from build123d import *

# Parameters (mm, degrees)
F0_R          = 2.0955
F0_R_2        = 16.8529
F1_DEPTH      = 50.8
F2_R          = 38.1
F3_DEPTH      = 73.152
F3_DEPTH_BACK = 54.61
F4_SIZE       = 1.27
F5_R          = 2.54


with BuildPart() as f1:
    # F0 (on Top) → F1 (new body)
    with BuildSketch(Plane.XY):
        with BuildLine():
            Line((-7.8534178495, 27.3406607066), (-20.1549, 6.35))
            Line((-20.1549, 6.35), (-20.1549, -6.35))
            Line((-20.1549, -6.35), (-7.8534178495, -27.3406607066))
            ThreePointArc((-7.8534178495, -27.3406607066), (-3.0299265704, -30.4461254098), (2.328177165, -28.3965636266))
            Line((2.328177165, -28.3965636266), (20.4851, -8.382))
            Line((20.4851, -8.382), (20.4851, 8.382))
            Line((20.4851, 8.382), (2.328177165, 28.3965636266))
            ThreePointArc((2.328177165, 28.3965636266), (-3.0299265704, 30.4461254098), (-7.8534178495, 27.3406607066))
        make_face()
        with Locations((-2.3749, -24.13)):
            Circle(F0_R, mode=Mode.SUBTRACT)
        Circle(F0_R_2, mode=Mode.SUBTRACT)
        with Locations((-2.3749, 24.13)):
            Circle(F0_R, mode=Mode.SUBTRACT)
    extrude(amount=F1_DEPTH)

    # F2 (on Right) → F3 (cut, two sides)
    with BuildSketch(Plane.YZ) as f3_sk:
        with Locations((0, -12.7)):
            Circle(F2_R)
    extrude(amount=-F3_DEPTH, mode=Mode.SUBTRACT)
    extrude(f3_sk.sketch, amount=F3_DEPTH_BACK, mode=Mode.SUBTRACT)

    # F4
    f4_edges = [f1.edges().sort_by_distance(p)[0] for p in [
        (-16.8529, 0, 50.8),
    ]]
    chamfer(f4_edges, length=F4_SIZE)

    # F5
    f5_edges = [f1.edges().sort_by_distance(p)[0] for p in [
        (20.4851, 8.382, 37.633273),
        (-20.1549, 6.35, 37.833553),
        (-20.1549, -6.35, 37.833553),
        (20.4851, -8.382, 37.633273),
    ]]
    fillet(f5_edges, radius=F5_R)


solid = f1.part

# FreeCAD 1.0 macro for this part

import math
import FreeCAD as App
import Part
import Sketcher
from FreeCAD import Vector
Q = App.Units.Quantity


def edges_at(feature, points):
    """Names of the edges that pass closest to the given points."""
    edges = feature.Shape.Edges
    near = lambda p: min(range(len(edges)), key=lambda i: edges[i].distToShape(Part.Vertex(*p))[0])
    return sorted({f"Edge{near(p) + 1}" for p in points})

doc = App.newDocument("Part")
body = doc.addObject("PartDesign::Body", "Body")

# Sketch on XY plane
sketch1 = body.newObject("Sketcher::SketchObject", "Sketch")
sketch1.AttachmentSupport = (doc.getObject("XY_Plane"), [""])
sketch1.MapMode = "FlatFace"
sketch1.addGeometry(Part.LineSegment(Vector(-7.9, 27.3, 0), Vector(-20.2, 6.3, 0)), False)
sketch1.addGeometry(Part.LineSegment(Vector(-20.2, 6.3, 0), Vector(-20.2, -6.3, 0)), False)
sketch1.addGeometry(Part.LineSegment(Vector(-20.2, -6.3, 0), Vector(-7.9, -27.3, 0)), False)
sketch1.addGeometry(Part.ArcOfCircle(Part.Circle(Vector(-2.4, -24.1, 0), Vector(0, 0, 1), 6.3), math.radians(-150), math.radians(-42)), False)
sketch1.addGeometry(Part.LineSegment(Vector(2.3, -28.4, 0), Vector(20.5, -8.4, 0)), False)
sketch1.addGeometry(Part.LineSegment(Vector(20.5, -8.4, 0), Vector(20.5, 8.4, 0)), False)
sketch1.addGeometry(Part.LineSegment(Vector(20.5, 8.4, 0), Vector(2.3, 28.4, 0)), False)
sketch1.addGeometry(Part.ArcOfCircle(Part.Circle(Vector(-2.4, 24.1, 0), Vector(0, 0, 1), 6.3), math.radians(42), math.radians(150)), False)
sketch1.addGeometry(Part.Circle(Vector(-2.4, -24.1, 0), Vector(0, 0, 1), 2.1), False)
sketch1.addGeometry(Part.Circle(Vector(-2.4, 24.1, 0), Vector(0, 0, 1), 2.1), False)
sketch1.addGeometry(Part.Circle(Vector(0, 0, 0), Vector(0, 0, 1), 16.9), False)
sketch1.addConstraint(Sketcher.Constraint("Coincident", 0, 2, 1, 1))
sketch1.addConstraint(Sketcher.Constraint("Coincident", 1, 2, 2, 1))
sketch1.addConstraint(Sketcher.Constraint("Tangent", 2, 2, 3, 1))
sketch1.addConstraint(Sketcher.Constraint("Tangent", 3, 2, 4, 1))
sketch1.addConstraint(Sketcher.Constraint("Coincident", 4, 2, 5, 1))
sketch1.addConstraint(Sketcher.Constraint("Coincident", 5, 2, 6, 1))
sketch1.addConstraint(Sketcher.Constraint("Tangent", 6, 2, 7, 1))
sketch1.addConstraint(Sketcher.Constraint("Tangent", 7, 2, 0, 1))
sketch1.addConstraint(Sketcher.Constraint("Vertical", 1))
sketch1.addConstraint(Sketcher.Constraint("Vertical", 5))
sketch1.addConstraint(Sketcher.Constraint("Coincident", 10, 3, -1, 1))
sketch1.addConstraint(Sketcher.Constraint("Coincident", 8, 3, 3, 3))
sketch1.addConstraint(Sketcher.Constraint("Coincident", 9, 3, 7, 3))
sketch1.addConstraint(Sketcher.Constraint("Equal", 3, 7))
sketch1.addConstraint(Sketcher.Constraint("Equal", 8, 9))
sketch1.addConstraint(Sketcher.Constraint("Symmetric", 3, 3, 7, 3, -1))
sketch1.addConstraint(Sketcher.Constraint("Vertical", 3, 2, 6, 2))
sketch1.addConstraint(Sketcher.Constraint("Vertical", 2, 2, 7, 2))
sketch1.addConstraint(Sketcher.Constraint("Radius", 3, Q("0.25 in")))
sketch1.addConstraint(Sketcher.Constraint("Diameter", 8, Q("0.165 in")))
sketch1.addConstraint(Sketcher.Constraint("Diameter", 10, Q("1.327 in")))
sketch1.addConstraint(Sketcher.Constraint("DistanceY", 1, 2, 1, 1, Q("0.5 in")))
sketch1.addConstraint(Sketcher.Constraint("DistanceY", 5, 1, 5, 2, Q("0.66 in")))
sketch1.addConstraint(Sketcher.Constraint("DistanceY", 3, 3, 7, 3, Q("1.9 in")))
sketch1.addConstraint(Sketcher.Constraint("DistanceX", 0, 2, 7, 3, Q("0.7 in")))
sketch1.addConstraint(Sketcher.Constraint("DistanceX", 3, 3, 4, 2, Q("0.9 in")))
sketch1.addConstraint(Sketcher.Constraint("DistanceX", 3, 3, -1, 1, Q("0.0935 in")))
pad1 = body.newObject("PartDesign::Pad", "Pad")
pad1.Profile = sketch1
pad1.Length = Q("2 in")

# Sketch on YZ plane
sketch2 = body.newObject("Sketcher::SketchObject", "Sketch001")
sketch2.AttachmentSupport = (doc.getObject("YZ_Plane"), [""])
sketch2.MapMode = "FlatFace"
sketch2.addGeometry(Part.Circle(Vector(0, -13, 0), Vector(0, 0, 1), 38), False)
sketch2.addConstraint(Sketcher.Constraint("PointOnObject", 0, 3, -2))
sketch2.addConstraint(Sketcher.Constraint("Diameter", 0, Q("3 in")))
sketch2.addConstraint(Sketcher.Constraint("DistanceY", 0, 3, -1, 1, Q("0.5 in")))
pocket1 = body.newObject("PartDesign::Pocket", "Pocket")
pocket1.Profile = sketch2
pocket1.Type = "ThroughAll"
pocket1.Midplane = True
doc.recompute()

chamfer = body.newObject("PartDesign::Chamfer", "Chamfer")
chamfer.Base = (pocket1, edges_at(pocket1, [(-16.853, 0, 50.8)]))
chamfer.Size = Q("0.05 in")
doc.recompute()

fillet = body.newObject("PartDesign::Fillet", "Fillet")
fillet.Base = (chamfer, edges_at(chamfer, [
    (20.485, 8.382, 37.633),
    (-20.155, 6.35, 37.834),
    (-20.155, -6.35, 37.834),
    (20.485, -8.382, 37.633),
]))
fillet.Radius = Q("0.1 in")

doc.recompute()
